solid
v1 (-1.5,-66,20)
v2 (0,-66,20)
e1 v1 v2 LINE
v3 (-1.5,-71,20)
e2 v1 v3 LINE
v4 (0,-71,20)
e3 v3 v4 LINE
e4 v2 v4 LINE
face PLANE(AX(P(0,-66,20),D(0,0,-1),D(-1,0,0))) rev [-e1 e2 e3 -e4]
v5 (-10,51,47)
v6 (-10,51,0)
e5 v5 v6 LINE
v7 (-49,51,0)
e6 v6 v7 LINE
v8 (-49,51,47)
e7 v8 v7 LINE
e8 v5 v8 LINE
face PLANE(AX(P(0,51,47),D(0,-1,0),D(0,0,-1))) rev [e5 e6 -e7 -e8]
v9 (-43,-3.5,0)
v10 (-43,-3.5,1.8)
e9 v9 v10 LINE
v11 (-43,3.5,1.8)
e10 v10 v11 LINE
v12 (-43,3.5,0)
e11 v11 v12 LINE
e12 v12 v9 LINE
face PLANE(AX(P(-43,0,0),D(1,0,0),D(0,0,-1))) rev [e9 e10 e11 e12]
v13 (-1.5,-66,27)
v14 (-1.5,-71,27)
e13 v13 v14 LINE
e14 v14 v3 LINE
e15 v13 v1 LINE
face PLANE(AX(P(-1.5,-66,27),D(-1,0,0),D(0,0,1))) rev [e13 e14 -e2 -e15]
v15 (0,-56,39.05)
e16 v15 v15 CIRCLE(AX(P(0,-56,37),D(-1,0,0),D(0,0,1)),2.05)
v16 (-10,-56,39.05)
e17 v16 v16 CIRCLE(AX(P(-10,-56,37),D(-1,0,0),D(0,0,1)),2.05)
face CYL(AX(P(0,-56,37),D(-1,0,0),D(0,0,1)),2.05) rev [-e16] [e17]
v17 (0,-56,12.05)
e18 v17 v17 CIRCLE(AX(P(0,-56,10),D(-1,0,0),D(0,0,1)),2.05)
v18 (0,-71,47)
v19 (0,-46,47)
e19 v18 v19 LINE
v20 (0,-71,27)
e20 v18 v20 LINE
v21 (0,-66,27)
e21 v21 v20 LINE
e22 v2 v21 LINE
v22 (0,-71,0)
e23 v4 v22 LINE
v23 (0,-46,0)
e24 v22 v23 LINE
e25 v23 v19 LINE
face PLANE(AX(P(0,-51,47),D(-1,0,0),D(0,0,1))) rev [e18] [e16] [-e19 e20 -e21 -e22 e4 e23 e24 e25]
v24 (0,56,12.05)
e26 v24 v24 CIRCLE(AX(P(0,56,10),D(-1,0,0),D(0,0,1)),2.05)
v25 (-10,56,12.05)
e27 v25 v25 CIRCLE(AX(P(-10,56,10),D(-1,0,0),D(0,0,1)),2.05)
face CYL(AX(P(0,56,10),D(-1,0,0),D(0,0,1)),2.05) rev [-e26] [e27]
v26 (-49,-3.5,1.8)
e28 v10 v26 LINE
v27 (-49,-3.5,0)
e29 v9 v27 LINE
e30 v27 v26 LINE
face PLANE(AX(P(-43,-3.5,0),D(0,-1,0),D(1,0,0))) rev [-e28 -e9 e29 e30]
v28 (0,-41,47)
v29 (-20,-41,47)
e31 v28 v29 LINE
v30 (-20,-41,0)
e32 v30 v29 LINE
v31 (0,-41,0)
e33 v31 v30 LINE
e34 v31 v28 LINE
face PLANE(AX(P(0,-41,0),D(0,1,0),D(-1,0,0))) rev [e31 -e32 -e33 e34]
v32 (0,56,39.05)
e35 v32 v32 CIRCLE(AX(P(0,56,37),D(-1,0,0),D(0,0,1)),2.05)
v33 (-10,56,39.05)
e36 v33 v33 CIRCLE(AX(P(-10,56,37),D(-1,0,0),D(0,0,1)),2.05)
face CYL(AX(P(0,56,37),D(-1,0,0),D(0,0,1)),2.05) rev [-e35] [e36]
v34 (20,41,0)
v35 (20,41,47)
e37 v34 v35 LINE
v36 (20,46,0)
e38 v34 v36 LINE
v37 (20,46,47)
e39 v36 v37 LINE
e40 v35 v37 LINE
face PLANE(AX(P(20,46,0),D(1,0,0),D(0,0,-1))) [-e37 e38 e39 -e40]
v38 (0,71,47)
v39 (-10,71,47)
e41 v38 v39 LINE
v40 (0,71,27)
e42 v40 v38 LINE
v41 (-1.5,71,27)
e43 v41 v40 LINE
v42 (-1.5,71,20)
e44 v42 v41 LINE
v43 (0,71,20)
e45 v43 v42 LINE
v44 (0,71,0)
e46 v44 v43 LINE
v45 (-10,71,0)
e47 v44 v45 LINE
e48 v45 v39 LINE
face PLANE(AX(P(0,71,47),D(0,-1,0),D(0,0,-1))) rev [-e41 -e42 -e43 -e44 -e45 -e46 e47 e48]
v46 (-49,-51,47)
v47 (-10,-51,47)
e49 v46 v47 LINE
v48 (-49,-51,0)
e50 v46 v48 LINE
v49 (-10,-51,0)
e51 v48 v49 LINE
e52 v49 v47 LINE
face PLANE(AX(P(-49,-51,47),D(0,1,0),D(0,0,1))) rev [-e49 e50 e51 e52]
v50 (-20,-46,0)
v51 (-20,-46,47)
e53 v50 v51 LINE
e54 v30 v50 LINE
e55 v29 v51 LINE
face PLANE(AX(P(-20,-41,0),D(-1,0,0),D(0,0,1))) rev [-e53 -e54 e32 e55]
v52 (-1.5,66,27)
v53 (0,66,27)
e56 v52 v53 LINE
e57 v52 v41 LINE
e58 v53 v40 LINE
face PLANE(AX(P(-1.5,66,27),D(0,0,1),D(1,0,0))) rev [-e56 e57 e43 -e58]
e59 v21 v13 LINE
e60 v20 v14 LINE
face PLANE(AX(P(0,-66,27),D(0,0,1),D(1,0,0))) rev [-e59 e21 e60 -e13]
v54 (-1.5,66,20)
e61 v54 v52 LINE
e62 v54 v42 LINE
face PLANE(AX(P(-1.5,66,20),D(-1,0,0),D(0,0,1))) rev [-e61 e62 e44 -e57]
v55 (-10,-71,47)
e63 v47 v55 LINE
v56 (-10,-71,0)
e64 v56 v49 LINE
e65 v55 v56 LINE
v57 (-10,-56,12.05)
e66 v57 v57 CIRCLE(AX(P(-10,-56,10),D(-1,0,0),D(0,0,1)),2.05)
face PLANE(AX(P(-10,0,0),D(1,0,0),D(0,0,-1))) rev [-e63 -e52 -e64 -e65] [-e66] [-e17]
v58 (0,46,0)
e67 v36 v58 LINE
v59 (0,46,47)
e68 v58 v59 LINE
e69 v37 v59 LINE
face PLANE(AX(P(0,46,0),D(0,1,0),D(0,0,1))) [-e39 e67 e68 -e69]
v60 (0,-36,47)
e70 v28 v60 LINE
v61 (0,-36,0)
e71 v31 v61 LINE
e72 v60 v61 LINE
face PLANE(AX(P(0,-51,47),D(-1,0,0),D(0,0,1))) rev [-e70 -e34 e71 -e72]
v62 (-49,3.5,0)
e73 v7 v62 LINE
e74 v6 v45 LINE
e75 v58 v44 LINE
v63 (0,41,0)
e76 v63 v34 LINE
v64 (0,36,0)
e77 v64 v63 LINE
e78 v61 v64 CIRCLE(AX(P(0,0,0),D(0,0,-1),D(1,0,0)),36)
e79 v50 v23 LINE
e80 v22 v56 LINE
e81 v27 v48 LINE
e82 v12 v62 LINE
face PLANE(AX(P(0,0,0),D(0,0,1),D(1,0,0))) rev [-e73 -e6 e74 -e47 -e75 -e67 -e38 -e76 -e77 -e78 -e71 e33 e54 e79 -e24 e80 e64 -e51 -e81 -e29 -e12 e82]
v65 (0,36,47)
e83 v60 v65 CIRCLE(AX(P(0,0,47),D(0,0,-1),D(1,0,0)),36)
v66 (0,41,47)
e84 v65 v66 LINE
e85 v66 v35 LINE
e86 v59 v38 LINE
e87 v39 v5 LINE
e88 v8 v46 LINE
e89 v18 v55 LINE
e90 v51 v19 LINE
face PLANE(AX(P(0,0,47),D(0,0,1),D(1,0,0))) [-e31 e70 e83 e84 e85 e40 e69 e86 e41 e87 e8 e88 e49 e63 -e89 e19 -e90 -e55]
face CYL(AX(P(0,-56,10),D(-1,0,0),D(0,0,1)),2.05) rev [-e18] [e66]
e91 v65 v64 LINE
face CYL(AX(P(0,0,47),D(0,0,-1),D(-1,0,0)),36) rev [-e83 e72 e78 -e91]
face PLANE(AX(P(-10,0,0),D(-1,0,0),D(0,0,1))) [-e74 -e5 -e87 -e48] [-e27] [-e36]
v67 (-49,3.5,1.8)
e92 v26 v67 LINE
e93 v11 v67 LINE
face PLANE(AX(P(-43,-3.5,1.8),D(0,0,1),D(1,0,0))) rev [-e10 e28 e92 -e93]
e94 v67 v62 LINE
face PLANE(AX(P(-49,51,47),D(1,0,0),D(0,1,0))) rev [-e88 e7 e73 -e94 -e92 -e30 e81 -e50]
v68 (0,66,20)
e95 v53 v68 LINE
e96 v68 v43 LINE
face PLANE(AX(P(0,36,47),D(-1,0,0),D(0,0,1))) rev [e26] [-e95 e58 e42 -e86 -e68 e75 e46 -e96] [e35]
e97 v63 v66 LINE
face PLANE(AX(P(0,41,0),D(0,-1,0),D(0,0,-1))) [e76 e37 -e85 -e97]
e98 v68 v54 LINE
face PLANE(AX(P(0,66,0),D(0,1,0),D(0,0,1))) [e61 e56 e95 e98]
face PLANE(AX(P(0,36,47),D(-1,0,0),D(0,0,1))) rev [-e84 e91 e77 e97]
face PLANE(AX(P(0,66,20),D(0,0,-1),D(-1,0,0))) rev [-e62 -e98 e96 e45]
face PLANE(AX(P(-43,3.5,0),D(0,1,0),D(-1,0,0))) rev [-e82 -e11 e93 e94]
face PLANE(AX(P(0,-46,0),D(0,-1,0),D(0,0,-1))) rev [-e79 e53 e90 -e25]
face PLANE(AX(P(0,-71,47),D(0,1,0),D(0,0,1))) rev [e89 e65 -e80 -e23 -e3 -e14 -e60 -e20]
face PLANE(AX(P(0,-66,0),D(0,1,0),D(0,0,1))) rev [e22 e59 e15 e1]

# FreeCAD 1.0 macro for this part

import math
import FreeCAD as App
import Part
import Sketcher
from FreeCAD import Vector


def add_polygon(sketch, points):
    """Adds a closed chain of lines whose ends are joined by coincident constraints."""
    first, n = sketch.GeometryCount, len(points)
    for a, b in zip(points, points[1:] + points[:1]):
        sketch.addGeometry(Part.LineSegment(App.Vector(*a, 0), App.Vector(*b, 0)), False)
    for i in range(n):
        sketch.addConstraint(Sketcher.Constraint("Coincident", first + i, 2, first + (i + 1) % n, 1))

doc = App.newDocument("Part")
params = doc.addObject("Spreadsheet::Sheet", "Params")
for row, (alias, value) in enumerate([
    ("sketch1_radius", "36 mm"),
    ("sketch1_width", "49 mm"),
    ("sketch1_height", "15 mm"),
    ("pad1_length", "47 mm"),
    ("sketch2_width", "20 mm"),
    ("sketch2_height", "47 mm"),
    ("pad2_length", "10 mm"),
    ("sketch3_width", "20 mm"),
    ("sketch3_height", "5 mm"),
    ("pad3_length", "47 mm"),
    ("sketch4_width", "20 mm"),
    ("sketch4_height", "5 mm"),
    ("sketch5_diameter", "4.1 mm"),
    ("pocket2_length", "10 mm"),
    ("sketch6_diameter", "4.1 mm"),
    ("pocket3_length", "10 mm"),
    ("sketch7_height", "7 mm"),
    ("sketch7_width", "1.5 mm"),
    ("pocket4_length", "5 mm"),
    ("sketch8_height", "7 mm"),
    ("sketch8_width", "1.5 mm"),
    ("pocket5_length", "5 mm"),
    ("sketch9_width", "7 mm"),
    ("sketch9_height", "1.8 mm"),
    ("pocket6_length", "6 mm"),
], start=1):
    params.set(f"A{row}", alias)
    params.set(f"B{row}", "=" + value)
    params.setAlias(f"B{row}", alias)

body = doc.addObject("PartDesign::Body", "Body")

sketch1 = body.newObject("Sketcher::SketchObject", "Sketch")
sketch1.AttachmentSupport = (doc.getObject("XY_Plane"), [""])
sketch1.MapMode = "FlatFace"
sketch1.addGeometry(Part.LineSegment(Vector(0, 36, 0), Vector(0, 51, 0)), False)
sketch1.addGeometry(Part.LineSegment(Vector(0, 51, 0), Vector(-49, 51, 0)), False)
sketch1.addGeometry(Part.LineSegment(Vector(-49, 51, 0), Vector(-49, -51, 0)), False)
sketch1.addGeometry(Part.LineSegment(Vector(-49, -51, 0), Vector(0, -51, 0)), False)
sketch1.addGeometry(Part.LineSegment(Vector(0, -51, 0), Vector(0, -36, 0)), False)
sketch1.addGeometry(Part.ArcOfCircle(Part.Circle(Vector(0, 0, 0), Vector(0, 0, 1), 36), math.radians(90), math.radians(270)), False)
sketch1.addConstraint(Sketcher.Constraint("Coincident", 0, 2, 1, 1))
sketch1.addConstraint(Sketcher.Constraint("Coincident", 1, 2, 2, 1))
sketch1.addConstraint(Sketcher.Constraint("Coincident", 2, 2, 3, 1))
sketch1.addConstraint(Sketcher.Constraint("Coincident", 3, 2, 4, 1))
sketch1.addConstraint(Sketcher.Constraint("Coincident", 4, 2, 5, 2))
sketch1.addConstraint(Sketcher.Constraint("Coincident", 5, 1, 0, 1))
sketch1.addConstraint(Sketcher.Constraint("Vertical", 0))
sketch1.addConstraint(Sketcher.Constraint("Horizontal", 1))
sketch1.addConstraint(Sketcher.Constraint("Vertical", 2))
sketch1.addConstraint(Sketcher.Constraint("Horizontal", 3))
sketch1.addConstraint(Sketcher.Constraint("Vertical", 4))
sketch1.addConstraint(Sketcher.Constraint("Coincident", 5, 3, -1, 1))
sketch1.addConstraint(Sketcher.Constraint("Symmetric", 0, 2, 3, 2, -1, 1))
sketch1.addConstraint(Sketcher.Constraint("PointOnObject", 0, 2, -2))
sketch1.addConstraint(Sketcher.Constraint("Radius", 5, 36.0))
sketch1.addConstraint(Sketcher.Constraint("DistanceX", 1, 2, 1, 1, 49.0))
sketch1.addConstraint(Sketcher.Constraint("DistanceY", 0, 1, 0, 2, 15.0))
sketch1.setExpression("Constraints[14]", "Params.sketch1_radius")
sketch1.setExpression("Constraints[15]", "Params.sketch1_width")
sketch1.setExpression("Constraints[16]", "Params.sketch1_height")
pad1 = body.newObject("PartDesign::Pad", "Pad")
pad1.Profile = sketch1
pad1.setExpression("Length", "Params.pad1_length")

sketch2 = body.newObject("Sketcher::SketchObject", "Sketch001")
sketch2.AttachmentSupport = (doc.getObject("YZ_Plane"), [""])
sketch2.MapMode = "FlatFace"
sketch2.AttachmentOffset = App.Placement(Vector(0, 0, -10), App.Rotation())
add_polygon(sketch2, [(-51, 47), (-71, 47), (-71, 0), (-51, 0)])
add_polygon(sketch2, [(71, 47), (51, 47), (51, 0), (71, 0)])
sketch2.addConstraint(Sketcher.Constraint("Horizontal", 0))
sketch2.addConstraint(Sketcher.Constraint("Vertical", 1))
sketch2.addConstraint(Sketcher.Constraint("Horizontal", 2))
sketch2.addConstraint(Sketcher.Constraint("Vertical", 3))
sketch2.addConstraint(Sketcher.Constraint("Horizontal", 4))
sketch2.addConstraint(Sketcher.Constraint("Vertical", 5))
sketch2.addConstraint(Sketcher.Constraint("Horizontal", 6))
sketch2.addConstraint(Sketcher.Constraint("Vertical", 7))
sketch2.addConstraint(Sketcher.Constraint("Symmetric", 2, 2, 5, 2, -1, 1))
sketch2.addConstraint(Sketcher.Constraint("Symmetric", 1, 2, 6, 2, -2))
sketch2.addConstraint(Sketcher.Constraint("Horizontal", 3, 2, 4, 2))
sketch2.addConstraint(Sketcher.Constraint("DistanceX", 0, 2, 0, 1, 20.0))
sketch2.addConstraint(Sketcher.Constraint("DistanceY", 1, 2, 1, 1, 47.0))
sketch2.addConstraint(Sketcher.Constraint("DistanceX", 0, 2, -1, 1, 71.0))
sketch2.setExpression("Constraints[19]", "Params.sketch2_width")
sketch2.setExpression("Constraints[20]", "Params.sketch2_height")
pad2 = body.newObject("PartDesign::Pad", "Pad001")
pad2.Profile = sketch2
pad2.setExpression("Length", "Params.pad2_length")

sketch3 = body.newObject("Sketcher::SketchObject", "Sketch002")
sketch3.AttachmentSupport = (doc.getObject("XY_Plane"), [""])
sketch3.MapMode = "FlatFace"
sketch3.AttachmentOffset = App.Placement(Vector(0, 0, 47), App.Rotation())
add_polygon(sketch3, [(0, 46), (0, 41), (20, 41), (20, 46)])
sketch3.addConstraint(Sketcher.Constraint("Vertical", 0))
sketch3.addConstraint(Sketcher.Constraint("Horizontal", 1))
sketch3.addConstraint(Sketcher.Constraint("Vertical", 2))
sketch3.addConstraint(Sketcher.Constraint("Horizontal", 3))
sketch3.addConstraint(Sketcher.Constraint("PointOnObject", 0, 2, -2))
sketch3.addConstraint(Sketcher.Constraint("DistanceX", 1, 1, 1, 2, 20.0))
sketch3.addConstraint(Sketcher.Constraint("DistanceY", 0, 2, 0, 1, 5.0))
sketch3.addConstraint(Sketcher.Constraint("DistanceY", -1, 1, 0, 2, 41.0))
sketch3.setExpression("Constraints[9]", "Params.sketch3_width")
sketch3.setExpression("Constraints[10]", "Params.sketch3_height")
pad3 = body.newObject("PartDesign::Pad", "Pad002")
pad3.Profile = sketch3
pad3.setExpression("Length", "Params.pad3_length")
pad3.Reversed = True

sketch4 = body.newObject("Sketcher::SketchObject", "Sketch003")
sketch4.AttachmentSupport = (doc.getObject("XY_Plane"), [""])
sketch4.MapMode = "FlatFace"
sketch4.AttachmentOffset = App.Placement(Vector(0, 0, 47), App.Rotation())
add_polygon(sketch4, [(-20, -41), (-20, -46), (0, -46), (0, -41)])
sketch4.addConstraint(Sketcher.Constraint("Vertical", 0))
sketch4.addConstraint(Sketcher.Constraint("Horizontal", 1))
sketch4.addConstraint(Sketcher.Constraint("Vertical", 2))
sketch4.addConstraint(Sketcher.Constraint("Horizontal", 3))
sketch4.addConstraint(Sketcher.Constraint("PointOnObject", 1, 2, -2))
sketch4.addConstraint(Sketcher.Constraint("DistanceX", 1, 1, 1, 2, 20.0))
sketch4.addConstraint(Sketcher.Constraint("DistanceY", 0, 2, 0, 1, 5.0))
sketch4.addConstraint(Sketcher.Constraint("DistanceY", 0, 2, -1, 1, 46.0))
sketch4.setExpression("Constraints[9]", "Params.sketch4_width")
sketch4.setExpression("Constraints[10]", "Params.sketch4_height")
pocket1 = body.newObject("PartDesign::Pocket", "Pocket")
pocket1.Profile = sketch4
pocket1.Type = "ThroughAll"

sketch5 = body.newObject("Sketcher::SketchObject", "Sketch004")
sketch5.AttachmentSupport = (doc.getObject("YZ_Plane"), [""])
sketch5.MapMode = "FlatFace"
sketch5.AttachmentOffset = App.Placement(Vector(0, 0, -10), App.Rotation())
sketch5.addGeometry(Part.Circle(Vector(-56, 10, 0), Vector(0, 0, 1), 2), False)
sketch5.addGeometry(Part.Circle(Vector(-56, 37, 0), Vector(0, 0, 1), 2), False)
sketch5.addConstraint(Sketcher.Constraint("Equal", 0, 1))
sketch5.addConstraint(Sketcher.Constraint("Vertical", 0, 3, 1, 3))
sketch5.addConstraint(Sketcher.Constraint("Diameter", 0, 4.1))
sketch5.addConstraint(Sketcher.Constraint("DistanceX", 0, 3, -1, 1, 56.0))
sketch5.addConstraint(Sketcher.Constraint("DistanceY", -1, 1, 0, 3, 10.0))
sketch5.addConstraint(Sketcher.Constraint("DistanceY", -1, 1, 1, 3, 37.0))
sketch5.setExpression("Constraints[2]", "Params.sketch5_diameter")
pocket2 = body.newObject("PartDesign::Pocket", "Pocket001")
pocket2.Profile = sketch5
pocket2.setExpression("Length", "Params.pocket2_length")
pocket2.Reversed = True

sketch6 = body.newObject("Sketcher::SketchObject", "Sketch005")
sketch6.AttachmentSupport = (doc.getObject("YZ_Plane"), [""])
sketch6.MapMode = "FlatFace"
sketch6.AttachmentOffset = App.Placement(Vector(0, 0, -10), App.Rotation())
sketch6.addGeometry(Part.Circle(Vector(56, 10, 0), Vector(0, 0, 1), 2), False)
sketch6.addGeometry(Part.Circle(Vector(56, 37, 0), Vector(0, 0, 1), 2), False)
sketch6.addConstraint(Sketcher.Constraint("Equal", 0, 1))
sketch6.addConstraint(Sketcher.Constraint("Vertical", 0, 3, 1, 3))
sketch6.addConstraint(Sketcher.Constraint("Diameter", 0, 4.1))
sketch6.addConstraint(Sketcher.Constraint("DistanceX", -1, 1, 0, 3, 56.0))
sketch6.addConstraint(Sketcher.Constraint("DistanceY", -1, 1, 0, 3, 10.0))
sketch6.addConstraint(Sketcher.Constraint("DistanceY", -1, 1, 1, 3, 37.0))
sketch6.setExpression("Constraints[2]", "Params.sketch6_diameter")
pocket3 = body.newObject("PartDesign::Pocket", "Pocket002")
pocket3.Profile = sketch6
pocket3.setExpression("Length", "Params.pocket3_length")
pocket3.Reversed = True

sketch7 = body.newObject("Sketcher::SketchObject", "Sketch006")
sketch7.AttachmentSupport = (doc.getObject("XZ_Plane"), [""])
sketch7.MapMode = "FlatFace"
sketch7.AttachmentOffset = App.Placement(Vector(0, 0, 71), App.Rotation())
add_polygon(sketch7, [(-1.5, 27), (-1.5, 20), (0, 20), (0, 27)])
sketch7.addConstraint(Sketcher.Constraint("Vertical", 0))
sketch7.addConstraint(Sketcher.Constraint("Horizontal", 1))
sketch7.addConstraint(Sketcher.Constraint("Vertical", 2))
sketch7.addConstraint(Sketcher.Constraint("Horizontal", 3))
sketch7.addConstraint(Sketcher.Constraint("PointOnObject", 1, 2, -2))
sketch7.addConstraint(Sketcher.Constraint("DistanceY", 0, 2, 0, 1, 7.0))
sketch7.addConstraint(Sketcher.Constraint("DistanceX", 1, 1, 1, 2, 1.5))
sketch7.addConstraint(Sketcher.Constraint("DistanceY", -1, 1, 0, 2, 20.0))
sketch7.setExpression("Constraints[9]", "Params.sketch7_height")
sketch7.setExpression("Constraints[10]", "Params.sketch7_width")
pocket4 = body.newObject("PartDesign::Pocket", "Pocket003")
pocket4.Profile = sketch7
pocket4.setExpression("Length", "Params.pocket4_length")

sketch8 = body.newObject("Sketcher::SketchObject", "Sketch007")
sketch8.AttachmentSupport = (doc.getObject("XZ_Plane"), [""])
sketch8.MapMode = "FlatFace"
sketch8.AttachmentOffset = App.Placement(Vector(0, 0, -71), App.Rotation())
add_polygon(sketch8, [(-1.5, 20), (-1.5, 27), (0, 27), (0, 20)])
sketch8.addConstraint(Sketcher.Constraint("Vertical", 0))
sketch8.addConstraint(Sketcher.Constraint("Horizontal", 1))
sketch8.addConstraint(Sketcher.Constraint("Vertical", 2))
sketch8.addConstraint(Sketcher.Constraint("Horizontal", 3))
sketch8.addConstraint(Sketcher.Constraint("PointOnObject", 1, 2, -2))
sketch8.addConstraint(Sketcher.Constraint("DistanceY", 0, 1, 0, 2, 7.0))
sketch8.addConstraint(Sketcher.Constraint("DistanceX", 1, 1, 1, 2, 1.5))
sketch8.addConstraint(Sketcher.Constraint("DistanceY", -1, 1, 0, 2, 27.0))
sketch8.setExpression("Constraints[9]", "Params.sketch8_height")
sketch8.setExpression("Constraints[10]", "Params.sketch8_width")
pocket5 = body.newObject("PartDesign::Pocket", "Pocket004")
pocket5.Profile = sketch8
pocket5.setExpression("Length", "Params.pocket5_length")
pocket5.Reversed = True

sketch9 = body.newObject("Sketcher::SketchObject", "Sketch008")
sketch9.AttachmentSupport = (doc.getObject("YZ_Plane"), [""])
sketch9.MapMode = "FlatFace"
sketch9.AttachmentOffset = App.Placement(Vector(0, 0, -49), App.Rotation())
add_polygon(sketch9, [(3.5, 0), (-3.5, 0), (-3.5, 1.8), (3.5, 1.8)])
sketch9.addConstraint(Sketcher.Constraint("Horizontal", 0))
sketch9.addConstraint(Sketcher.Constraint("Vertical", 1))
sketch9.addConstraint(Sketcher.Constraint("Horizontal", 2))
sketch9.addConstraint(Sketcher.Constraint("Vertical", 3))
sketch9.addConstraint(Sketcher.Constraint("Symmetric", 0, 2, 3, 2, -1, 1))
sketch9.addConstraint(Sketcher.Constraint("DistanceX", 0, 2, 0, 1, 7.0))
sketch9.addConstraint(Sketcher.Constraint("DistanceY", 1, 1, 1, 2, 1.8))
sketch9.setExpression("Constraints[9]", "Params.sketch9_width")
sketch9.setExpression("Constraints[10]", "Params.sketch9_height")
pocket6 = body.newObject("PartDesign::Pocket", "Pocket005")
pocket6.Profile = sketch9
pocket6.setExpression("Length", "Params.pocket6_length")
pocket6.Reversed = True

doc.recompute()
